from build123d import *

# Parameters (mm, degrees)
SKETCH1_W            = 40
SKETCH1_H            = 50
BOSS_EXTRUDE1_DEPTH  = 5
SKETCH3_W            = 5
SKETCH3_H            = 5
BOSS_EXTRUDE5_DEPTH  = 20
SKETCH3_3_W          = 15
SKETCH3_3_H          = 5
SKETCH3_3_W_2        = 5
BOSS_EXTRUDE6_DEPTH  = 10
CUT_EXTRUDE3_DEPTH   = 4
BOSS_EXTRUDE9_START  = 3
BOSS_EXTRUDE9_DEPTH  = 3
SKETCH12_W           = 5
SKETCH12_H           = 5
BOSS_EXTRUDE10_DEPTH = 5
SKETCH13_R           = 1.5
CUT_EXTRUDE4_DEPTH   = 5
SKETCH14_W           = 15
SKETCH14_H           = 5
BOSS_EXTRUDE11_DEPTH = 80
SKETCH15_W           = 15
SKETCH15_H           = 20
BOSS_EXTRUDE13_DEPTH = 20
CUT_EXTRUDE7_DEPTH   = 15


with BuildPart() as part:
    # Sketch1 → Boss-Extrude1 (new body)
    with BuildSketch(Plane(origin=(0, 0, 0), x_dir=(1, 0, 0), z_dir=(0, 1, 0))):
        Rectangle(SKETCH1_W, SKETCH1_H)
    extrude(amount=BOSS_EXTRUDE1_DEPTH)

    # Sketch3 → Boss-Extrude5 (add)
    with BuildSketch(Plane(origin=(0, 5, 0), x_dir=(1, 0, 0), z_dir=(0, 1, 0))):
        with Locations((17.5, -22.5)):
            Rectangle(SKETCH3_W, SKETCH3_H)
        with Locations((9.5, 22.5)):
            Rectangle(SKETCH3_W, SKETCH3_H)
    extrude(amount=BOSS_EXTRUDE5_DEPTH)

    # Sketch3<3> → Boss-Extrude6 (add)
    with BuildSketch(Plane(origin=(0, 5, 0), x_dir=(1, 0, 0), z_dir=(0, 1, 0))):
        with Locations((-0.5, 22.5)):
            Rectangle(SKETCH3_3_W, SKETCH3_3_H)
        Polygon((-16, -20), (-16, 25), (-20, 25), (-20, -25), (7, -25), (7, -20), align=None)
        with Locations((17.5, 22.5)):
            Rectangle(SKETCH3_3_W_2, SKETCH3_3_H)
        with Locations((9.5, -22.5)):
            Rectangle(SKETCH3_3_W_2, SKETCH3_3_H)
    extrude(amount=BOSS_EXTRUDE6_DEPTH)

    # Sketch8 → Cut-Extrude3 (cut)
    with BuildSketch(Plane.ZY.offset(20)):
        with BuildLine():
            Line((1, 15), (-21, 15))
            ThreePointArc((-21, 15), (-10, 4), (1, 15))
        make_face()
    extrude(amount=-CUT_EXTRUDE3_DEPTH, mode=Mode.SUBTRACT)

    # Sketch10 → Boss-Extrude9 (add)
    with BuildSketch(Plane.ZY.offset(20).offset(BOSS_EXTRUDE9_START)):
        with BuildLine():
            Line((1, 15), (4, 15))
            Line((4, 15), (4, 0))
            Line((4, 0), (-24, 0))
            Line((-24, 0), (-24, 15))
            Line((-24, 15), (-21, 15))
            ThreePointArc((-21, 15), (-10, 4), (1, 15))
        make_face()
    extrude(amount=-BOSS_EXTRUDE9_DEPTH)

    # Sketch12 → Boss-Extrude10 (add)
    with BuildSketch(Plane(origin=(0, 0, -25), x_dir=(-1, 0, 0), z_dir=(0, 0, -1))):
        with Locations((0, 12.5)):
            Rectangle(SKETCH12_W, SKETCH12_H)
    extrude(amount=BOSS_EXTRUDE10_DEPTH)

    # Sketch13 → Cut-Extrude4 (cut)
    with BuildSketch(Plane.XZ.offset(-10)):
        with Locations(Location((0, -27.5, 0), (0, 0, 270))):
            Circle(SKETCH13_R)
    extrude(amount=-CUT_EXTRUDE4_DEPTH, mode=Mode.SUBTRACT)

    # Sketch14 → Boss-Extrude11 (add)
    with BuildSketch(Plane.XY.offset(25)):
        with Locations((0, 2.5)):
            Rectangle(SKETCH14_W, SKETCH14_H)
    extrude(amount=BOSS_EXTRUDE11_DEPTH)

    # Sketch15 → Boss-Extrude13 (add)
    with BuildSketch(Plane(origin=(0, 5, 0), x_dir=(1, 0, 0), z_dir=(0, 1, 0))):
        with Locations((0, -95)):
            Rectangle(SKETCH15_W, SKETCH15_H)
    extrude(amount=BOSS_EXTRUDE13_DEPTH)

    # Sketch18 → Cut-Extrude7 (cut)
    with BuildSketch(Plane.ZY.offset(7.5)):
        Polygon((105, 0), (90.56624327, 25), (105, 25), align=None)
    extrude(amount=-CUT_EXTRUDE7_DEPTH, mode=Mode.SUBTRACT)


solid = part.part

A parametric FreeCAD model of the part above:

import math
import FreeCAD as App
import Part
import Sketcher
Q = App.Units.Quantity

doc = App.newDocument("Part")
params = doc.addObject("Spreadsheet::Sheet", "Params")
for row, (alias, value) in enumerate([
    ("sketch1_width", "40 mm"),
    ("sketch1_height", "50 mm"),
    ("pad1_length", "5 mm"),
    ("sketch2_width", "5 mm"),
    ("pad2_length", "20 mm"),
    ("sketch3_width", "15 mm"),
    ("sketch3_width2", "4 mm"),
    ("sketch3_width3", "32 mm"),
    ("sketch3_width4", "5 mm"),
    ("sketch3_height", "45 mm"),
    ("pad3_length", "10 mm"),
    ("sketch4_radius", "11 mm"),
    ("pocket1_length", "4 mm"),
    ("sketch5_radius", "11 mm"),
    ("sketch5_width", "15 mm"),
    ("sketch5_height", "3 mm"),
    ("pad4_length", "3 mm"),
    ("sketch6_width", "5 mm"),
    ("pad5_length", "5 mm"),
    ("sketch7_diameter", "3 mm"),
    ("pocket2_length", "5 mm"),
    ("sketch8_width", "15 mm"),
    ("sketch8_height", "5 mm"),
    ("pad6_length", "80 mm"),
    ("sketch9_width", "15 mm"),
    ("sketch9_height", "20 mm"),
    ("pad7_length", "20 mm"),
    ("sketch10_width", "25 mm"),
    ("pocket3_length", "15 mm"),
], start=1):
    params.set(f"A{row}", alias)
    params.set(f"B{row}", "=" + value)
    params.setAlias(f"B{row}", alias)

body = doc.addObject("PartDesign::Body", "Body")

sketch1 = body.newObject("Sketcher::SketchObject", "Sketch")
sketch1.AttachmentSupport = (doc.getObject("XZ_Plane"), [""])
sketch1.MapMode = "FlatFace"
sketch1.addGeometry(Part.LineSegment(App.Vector(-20, -25, 0), App.Vector(-20, 25, 0)), False)
sketch1.addGeometry(Part.LineSegment(App.Vector(-20, 25, 0), App.Vector(20, 25, 0)), False)
sketch1.addGeometry(Part.LineSegment(App.Vector(20, 25, 0), App.Vector(20, -25, 0)), False)
sketch1.addGeometry(Part.LineSegment(App.Vector(20, -25, 0), App.Vector(-20, -25, 0)), False)
sketch1.addConstraint(Sketcher.Constraint("Coincident", 0, 2, 1, 1))
sketch1.addConstraint(Sketcher.Constraint("Coincident", 1, 2, 2, 1))
sketch1.addConstraint(Sketcher.Constraint("Coincident", 2, 2, 3, 1))
sketch1.addConstraint(Sketcher.Constraint("Coincident", 3, 2, 0, 1))
sketch1.addConstraint(Sketcher.Constraint("Vertical", 0))
sketch1.addConstraint(Sketcher.Constraint("Horizontal", 1))
sketch1.addConstraint(Sketcher.Constraint("Vertical", 2))
sketch1.addConstraint(Sketcher.Constraint("Horizontal", 3))
sketch1.addConstraint(Sketcher.Constraint("Symmetric", 0, 2, 2, 2, -1, 1))
sketch1.addConstraint(Sketcher.Constraint("DistanceX", 1, 1, 1, 2, 40.0))
sketch1.addConstraint(Sketcher.Constraint("DistanceY", 0, 1, 0, 2, 50.0))
sketch1.setExpression("Constraints[9]", "Params.sketch1_width")
sketch1.setExpression("Constraints[10]", "Params.sketch1_height")
pad1 = body.newObject("PartDesign::Pad", "Pad")
pad1.Profile = sketch1
pad1.setExpression("Length", "Params.pad1_length")
pad1.Reversed = True

sketch2 = body.newObject("Sketcher::SketchObject", "Sketch001")
sketch2.AttachmentSupport = (doc.getObject("XZ_Plane"), [""])
sketch2.MapMode = "FlatFace"
sketch2.AttachmentOffset = App.Placement(App.Vector(0, 0, -5), App.Rotation())
sketch2.addGeometry(Part.LineSegment(App.Vector(15, 20, 0), App.Vector(15, 25, 0)), False)
sketch2.addGeometry(Part.LineSegment(App.Vector(15, 25, 0), App.Vector(20, 25, 0)), False)
sketch2.addGeometry(Part.LineSegment(App.Vector(20, 25, 0), App.Vector(20, 20, 0)), False)
sketch2.addGeometry(Part.LineSegment(App.Vector(20, 20, 0), App.Vector(15, 20, 0)), False)
sketch2.addGeometry(Part.LineSegment(App.Vector(7, -25, 0), App.Vector(7, -20, 0)), False)
sketch2.addGeometry(Part.LineSegment(App.Vector(7, -20, 0), App.Vector(12, -20, 0)), False)
sketch2.addGeometry(Part.LineSegment(App.Vector(12, -20, 0), App.Vector(12, -25, 0)), False)
sketch2.addGeometry(Part.LineSegment(App.Vector(12, -25, 0), App.Vector(7, -25, 0)), False)
sketch2.addConstraint(Sketcher.Constraint("Coincident", 0, 2, 1, 1))
sketch2.addConstraint(Sketcher.Constraint("Coincident", 1, 2, 2, 1))
sketch2.addConstraint(Sketcher.Constraint("Coincident", 2, 2, 3, 1))
sketch2.addConstraint(Sketcher.Constraint("Coincident", 3, 2, 0, 1))
sketch2.addConstraint(Sketcher.Constraint("Coincident", 4, 2, 5, 1))
sketch2.addConstraint(Sketcher.Constraint("Coincident", 5, 2, 6, 1))
sketch2.addConstraint(Sketcher.Constraint("Coincident", 6, 2, 7, 1))
sketch2.addConstraint(Sketcher.Constraint("Coincident", 7, 2, 4, 1))
sketch2.addConstraint(Sketcher.Constraint("Vertical", 0))
sketch2.addConstraint(Sketcher.Constraint("Horizontal", 1))
sketch2.addConstraint(Sketcher.Constraint("Vertical", 2))
sketch2.addConstraint(Sketcher.Constraint("Horizontal", 3))
sketch2.addConstraint(Sketcher.Constraint("Vertical", 4))
sketch2.addConstraint(Sketcher.Constraint("Horizontal", 5))
sketch2.addConstraint(Sketcher.Constraint("Vertical", 6))
sketch2.addConstraint(Sketcher.Constraint("Horizontal", 7))
sketch2.addConstraint(Sketcher.Constraint("Equal", 3, 5))
sketch2.addConstraint(Sketcher.Constraint("Equal", 7, 0))
sketch2.addConstraint(Sketcher.Constraint("Equal", 2, 4))
sketch2.addConstraint(Sketcher.Constraint("DistanceX", 1, 1, 1, 2, 5.0))
sketch2.addConstraint(Sketcher.Constraint("DistanceX", -1, 1, 0, 2, 15.0))
sketch2.addConstraint(Sketcher.Constraint("DistanceY", -1, 1, 0, 2, 25.0))
sketch2.addConstraint(Sketcher.Constraint("DistanceX", -1, 1, 4, 2, 7.0))
sketch2.addConstraint(Sketcher.Constraint("DistanceY", 4, 2, -1, 1, 20.0))
sketch2.setExpression("Constraints[19]", "Params.sketch2_width")
pad2 = body.newObject("PartDesign::Pad", "Pad001")
pad2.Profile = sketch2
pad2.setExpression("Length", "Params.pad2_length")
pad2.Reversed = True

sketch3 = body.newObject("Sketcher::SketchObject", "Sketch002")
sketch3.AttachmentSupport = (doc.getObject("XZ_Plane"), [""])
sketch3.MapMode = "FlatFace"
sketch3.AttachmentOffset = App.Placement(App.Vector(0, 0, -5), App.Rotation())
sketch3.addGeometry(Part.LineSegment(App.Vector(-8, -25, 0), App.Vector(-8, -20, 0)), False)
sketch3.addGeometry(Part.LineSegment(App.Vector(-8, -20, 0), App.Vector(7, -20, 0)), False)
sketch3.addGeometry(Part.LineSegment(App.Vector(7, -20, 0), App.Vector(7, -25, 0)), False)
sketch3.addGeometry(Part.LineSegment(App.Vector(7, -25, 0), App.Vector(-8, -25, 0)), False)
sketch3.addGeometry(Part.LineSegment(App.Vector(-16, 20, 0), App.Vector(-16, -25, 0)), False)
sketch3.addGeometry(Part.LineSegment(App.Vector(-16, -25, 0), App.Vector(-20, -25, 0)), False)
sketch3.addGeometry(Part.LineSegment(App.Vector(-20, -25, 0), App.Vector(-20, 25, 0)), False)
sketch3.addGeometry(Part.LineSegment(App.Vector(-20, 25, 0), App.Vector(12, 25, 0)), False)
sketch3.addGeometry(Part.LineSegment(App.Vector(12, 25, 0), App.Vector(12, 20, 0)), False)
sketch3.addGeometry(Part.LineSegment(App.Vector(12, 20, 0), App.Vector(-16, 20, 0)), False)
sketch3.addGeometry(Part.LineSegment(App.Vector(15, -25, 0), App.Vector(15, -20, 0)), False)
sketch3.addGeometry(Part.LineSegment(App.Vector(15, -20, 0), App.Vector(20, -20, 0)), False)
sketch3.addGeometry(Part.LineSegment(App.Vector(20, -20, 0), App.Vector(20, -25, 0)), False)
sketch3.addGeometry(Part.LineSegment(App.Vector(20, -25, 0), App.Vector(15, -25, 0)), False)
sketch3.addConstraint(Sketcher.Constraint("Coincident", 0, 2, 1, 1))
sketch3.addConstraint(Sketcher.Constraint("Coincident", 1, 2, 2, 1))
sketch3.addConstraint(Sketcher.Constraint("Coincident", 2, 2, 3, 1))
sketch3.addConstraint(Sketcher.Constraint("Coincident", 3, 2, 0, 1))
sketch3.addConstraint(Sketcher.Constraint("Coincident", 4, 2, 5, 1))
sketch3.addConstraint(Sketcher.Constraint("Coincident", 5, 2, 6, 1))
sketch3.addConstraint(Sketcher.Constraint("Coincident", 6, 2, 7, 1))
sketch3.addConstraint(Sketcher.Constraint("Coincident", 7, 2, 8, 1))
sketch3.addConstraint(Sketcher.Constraint("Coincident", 8, 2, 9, 1))
sketch3.addConstraint(Sketcher.Constraint("Coincident", 9, 2, 4, 1))
sketch3.addConstraint(Sketcher.Constraint("Coincident", 10, 2, 11, 1))
sketch3.addConstraint(Sketcher.Constraint("Coincident", 11, 2, 12, 1))
sketch3.addConstraint(Sketcher.Constraint("Coincident", 12, 2, 13, 1))
sketch3.addConstraint(Sketcher.Constraint("Coincident", 13, 2, 10, 1))
sketch3.addConstraint(Sketcher.Constraint("Vertical", 0))
sketch3.addConstraint(Sketcher.Constraint("Horizontal", 1))
sketch3.addConstraint(Sketcher.Constraint("Vertical", 2))
sketch3.addConstraint(Sketcher.Constraint("Horizontal", 3))
sketch3.addConstraint(Sketcher.Constraint("Vertical", 4))
sketch3.addConstraint(Sketcher.Constraint("Horizontal", 5))
sketch3.addConstraint(Sketcher.Constraint("Vertical", 6))
sketch3.addConstraint(Sketcher.Constraint("Horizontal", 7))
sketch3.addConstraint(Sketcher.Constraint("Vertical", 8))
sketch3.addConstraint(Sketcher.Constraint("Horizontal", 9))
sketch3.addConstraint(Sketcher.Constraint("Vertical", 10))
sketch3.addConstraint(Sketcher.Constraint("Horizontal", 11))
sketch3.addConstraint(Sketcher.Constraint("Vertical", 12))
sketch3.addConstraint(Sketcher.Constraint("Horizontal", 13))
sketch3.addConstraint(Sketcher.Constraint("Symmetric", 6, 2, 12, 2, -1, 1))
sketch3.addConstraint(Sketcher.Constraint("Horizontal", 3, 2, 4, 2))
sketch3.addConstraint(Sketcher.Constraint("Horizontal", 1, 2, 10, 2))
sketch3.addConstraint(Sketcher.Constraint("Horizontal", 5, 2, 12, 2))
sketch3.addConstraint(Sketcher.Constraint("Equal", 13, 0))
sketch3.addConstraint(Sketcher.Constraint("Equal", 2, 8))
sketch3.addConstraint(Sketcher.Constraint("DistanceX", 1, 1, 1, 2, 15.0))
sketch3.addConstraint(Sketcher.Constraint("DistanceX", 5, 2, 5, 1, 4.0))
sketch3.addConstraint(Sketcher.Constraint("DistanceX", 7, 1, 7, 2, 32.0))
sketch3.addConstraint(Sketcher.Constraint("DistanceX", 11, 1, 11, 2, 5.0))
sketch3.addConstraint(Sketcher.Constraint("DistanceY", 4, 2, 4, 1, 45.0))
sketch3.addConstraint(Sketcher.Constraint("DistanceX", 0, 2, -1, 1, 8.0))
sketch3.addConstraint(Sketcher.Constraint("DistanceX", 4, 2, -1, 1, 16.0))
sketch3.setExpression("Constraints[34]", "Params.sketch3_width")
sketch3.setExpression("Constraints[35]", "Params.sketch3_width2")
sketch3.setExpression("Constraints[36]", "Params.sketch3_width3")
sketch3.setExpression("Constraints[37]", "Params.sketch3_width4")
sketch3.setExpression("Constraints[38]", "Params.sketch3_height")
pad3 = body.newObject("PartDesign::Pad", "Pad002")
pad3.Profile = sketch3
pad3.setExpression("Length", "Params.pad3_length")
pad3.Reversed = True

sketch4 = body.newObject("Sketcher::SketchObject", "Sketch003")
sketch4.AttachmentSupport = (doc.getObject("YZ_Plane"), [""])
sketch4.MapMode = "FlatFace"
sketch4.AttachmentOffset = App.Placement(App.Vector(0, 0, -20), App.Rotation())
sketch4.addGeometry(Part.LineSegment(App.Vector(15, 1, 0), App.Vector(15, -21, 0)), False)
sketch4.addGeometry(Part.ArcOfCircle(Part.Circle(App.Vector(15, -10, 0), App.Vector(0, 0, 1), 11), math.radians(90), math.radians(270)), False)
sketch4.addConstraint(Sketcher.Constraint("Coincident", 0, 1, 1, 1))
sketch4.addConstraint(Sketcher.Constraint("Coincident", 1, 2, 0, 2))
sketch4.addConstraint(Sketcher.Constraint("Vertical", 0))
sketch4.addConstraint(Sketcher.Constraint("Vertical", 1, 3, 0, 1))
sketch4.addConstraint(Sketcher.Constraint("Radius", 1, 11.0))
sketch4.addConstraint(Sketcher.Constraint("DistanceX", -1, 1, 1, 3, 15.0))
sketch4.addConstraint(Sketcher.Constraint("DistanceY", 1, 3, -1, 1, 10.0))
sketch4.setExpression("Constraints[4]", "Params.sketch4_radius")
pocket1 = body.newObject("PartDesign::Pocket", "Pocket")
pocket1.Profile = sketch4
pocket1.setExpression("Length", "Params.pocket1_length")
pocket1.Reversed = True

sketch5 = body.newObject("Sketcher::SketchObject", "Sketch004")
sketch5.AttachmentSupport = (doc.getObject("YZ_Plane"), [""])
sketch5.MapMode = "FlatFace"
sketch5.AttachmentOffset = App.Placement(App.Vector(0, 0, -23), App.Rotation())
sketch5.addGeometry(Part.LineSegment(App.Vector(15, 4, 0), App.Vector(15, 1, 0)), False)
sketch5.addGeometry(Part.ArcOfCircle(Part.Circle(App.Vector(15, -10, 0), App.Vector(0, 0, 1), 11), math.radians(90), math.radians(270)), False)
sketch5.addGeometry(Part.LineSegment(App.Vector(15, -21, 0), App.Vector(15, -24, 0)), False)
sketch5.addGeometry(Part.LineSegment(App.Vector(15, -24, 0), App.Vector(0, -24, 0)), False)
sketch5.addGeometry(Part.LineSegment(App.Vector(0, -24, 0), App.Vector(0, 4, 0)), False)
sketch5.addGeometry(Part.LineSegment(App.Vector(0, 4, 0), App.Vector(15, 4, 0)), False)
sketch5.addConstraint(Sketcher.Constraint("Coincident", 0, 2, 1, 1))
sketch5.addConstraint(Sketcher.Constraint("Coincident", 1, 2, 2, 1))
sketch5.addConstraint(Sketcher.Constraint("Coincident", 2, 2, 3, 1))
sketch5.addConstraint(Sketcher.Constraint("Coincident", 3, 2, 4, 1))
sketch5.addConstraint(Sketcher.Constraint("Coincident", 4, 2, 5, 1))
sketch5.addConstraint(Sketcher.Constraint("Coincident", 5, 2, 0, 1))
sketch5.addConstraint(Sketcher.Constraint("Vertical", 0))
sketch5.addConstraint(Sketcher.Constraint("Vertical", 2))
sketch5.addConstraint(Sketcher.Constraint("Horizontal", 3))
sketch5.addConstraint(Sketcher.Constraint("Vertical", 4))
sketch5.addConstraint(Sketcher.Constraint("Horizontal", 5))
sketch5.addConstraint(Sketcher.Constraint("PointOnObject", 3, 2, -2))
sketch5.addConstraint(Sketcher.Constraint("Vertical", 1, 3, 0, 2))
sketch5.addConstraint(Sketcher.Constraint("Vertical", 0, 2, 1, 2))
sketch5.addConstraint(Sketcher.Constraint("Equal", 0, 2))
sketch5.addConstraint(Sketcher.Constraint("Radius", 1, 11.0))
sketch5.addConstraint(Sketcher.Constraint("DistanceX", 3, 2, 3, 1, 15.0))
sketch5.addConstraint(Sketcher.Constraint("DistanceY", 0, 2, 0, 1, 3.0))
sketch5.addConstraint(Sketcher.Constraint("DistanceY", 1, 3, -1, 1, 10.0))
sketch5.setExpression("Constraints[15]", "Params.sketch5_radius")
sketch5.setExpression("Constraints[16]", "Params.sketch5_width")
sketch5.setExpression("Constraints[17]", "Params.sketch5_height")
pad4 = body.newObject("PartDesign::Pad", "Pad003")
pad4.Profile = sketch5
pad4.setExpression("Length", "Params.pad4_length")

sketch6 = body.newObject("Sketcher::SketchObject", "Sketch005")
sketch6.AttachmentSupport = (doc.getObject("XY_Plane"), [""])
sketch6.MapMode = "FlatFace"
sketch6.AttachmentOffset = App.Placement(App.Vector(0, 0, -25), App.Rotation())
sketch6.addGeometry(Part.LineSegment(App.Vector(2, 15, 0), App.Vector(2, 10, 0)), False)
sketch6.addGeometry(Part.LineSegment(App.Vector(2, 10, 0), App.Vector(-2, 10, 0)), False)
sketch6.addGeometry(Part.LineSegment(App.Vector(-2, 10, 0), App.Vector(-2, 15, 0)), False)
sketch6.addGeometry(Part.LineSegment(App.Vector(-2, 15, 0), App.Vector(2, 15, 0)), False)
sketch6.addConstraint(Sketcher.Constraint("Coincident", 0, 2, 1, 1))
sketch6.addConstraint(Sketcher.Constraint("Coincident", 1, 2, 2, 1))
sketch6.addConstraint(Sketcher.Constraint("Coincident", 2, 2, 3, 1))
sketch6.addConstraint(Sketcher.Constraint("Coincident", 3, 2, 0, 1))
sketch6.addConstraint(Sketcher.Constraint("Vertical", 0))
sketch6.addConstraint(Sketcher.Constraint("Horizontal", 1))
sketch6.addConstraint(Sketcher.Constraint("Vertical", 2))
sketch6.addConstraint(Sketcher.Constraint("Horizontal", 3))
sketch6.addConstraint(Sketcher.Constraint("Equal", 3, 0))
sketch6.addConstraint(Sketcher.Constraint("DistanceX", 1, 2, 1, 1, 5.0))
sketch6.addConstraint(Sketcher.Constraint("DistanceY", -1, 1, 0, 2, 10.0))
sketch6.addConstraint(Sketcher.Constraint("DistanceX", -1, 1, 0, 2, 2.5))
sketch6.setExpression("Constraints[9]", "Params.sketch6_width")
pad5 = body.newObject("PartDesign::Pad", "Pad004")
pad5.Profile = sketch6
pad5.setExpression("Length", "Params.pad5_length")
pad5.Reversed = True

sketch7 = body.newObject("Sketcher::SketchObject", "Sketch006")
sketch7.AttachmentSupport = (doc.getObject("XZ_Plane"), [""])
sketch7.MapMode = "FlatFace"
sketch7.AttachmentOffset = App.Placement(App.Vector(0, 0, -10), App.Rotation())
sketch7.addGeometry(Part.Circle(App.Vector(0, -27.5, 0), App.Vector(0, 0, 1), 1.5), False)
sketch7.addConstraint(Sketcher.Constraint("PointOnObject", 0, 3, -2))
sketch7.addConstraint(Sketcher.Constraint("Diameter", 0, 3.0))
sketch7.addConstraint(Sketcher.Constraint("DistanceY", 0, 3, -1, 1, 27.5))
sketch7.setExpression("Constraints[1]", "Params.sketch7_diameter")
pocket2 = body.newObject("PartDesign::Pocket", "Pocket001")
pocket2.Profile = sketch7
pocket2.setExpression("Length", "Params.pocket2_length")

sketch8 = body.newObject("Sketcher::SketchObject", "Sketch007")
sketch8.AttachmentSupport = (doc.getObject("XY_Plane"), [""])
sketch8.MapMode = "FlatFace"
sketch8.AttachmentOffset = App.Placement(App.Vector(0, 0, 25), App.Rotation())
sketch8.addGeometry(Part.LineSegment(App.Vector(-8, 5, 0), App.Vector(-8, 0, 0)), False)
sketch8.addGeometry(Part.LineSegment(App.Vector(-8, 0, 0), App.Vector(8, 0, 0)), False)
sketch8.addGeometry(Part.LineSegment(App.Vector(8, 0, 0), App.Vector(8, 5, 0)), False)
sketch8.addGeometry(Part.LineSegment(App.Vector(8, 5, 0), App.Vector(-8, 5, 0)), False)
sketch8.addConstraint(Sketcher.Constraint("Coincident", 0, 2, 1, 1))
sketch8.addConstraint(Sketcher.Constraint("Coincident", 1, 2, 2, 1))
sketch8.addConstraint(Sketcher.Constraint("Coincident", 2, 2, 3, 1))
sketch8.addConstraint(Sketcher.Constraint("Coincident", 3, 2, 0, 1))
sketch8.addConstraint(Sketcher.Constraint("Vertical", 0))
sketch8.addConstraint(Sketcher.Constraint("Horizontal", 1))
sketch8.addConstraint(Sketcher.Constraint("Vertical", 2))
sketch8.addConstraint(Sketcher.Constraint("Horizontal", 3))
sketch8.addConstraint(Sketcher.Constraint("Symmetric", 0, 2, 1, 2, -1, 1))
sketch8.addConstraint(Sketcher.Constraint("DistanceX", 1, 1, 1, 2, 15.0))
sketch8.addConstraint(Sketcher.Constraint("DistanceY", 0, 2, 0, 1, 5.0))
sketch8.setExpression("Constraints[9]", "Params.sketch8_width")
sketch8.setExpression("Constraints[10]", "Params.sketch8_height")
pad6 = body.newObject("PartDesign::Pad", "Pad005")
pad6.Profile = sketch8
pad6.setExpression("Length", "Params.pad6_length")

sketch9 = body.newObject("Sketcher::SketchObject", "Sketch008")
sketch9.AttachmentSupport = (doc.getObject("XZ_Plane"), [""])
sketch9.MapMode = "FlatFace"
sketch9.AttachmentOffset = App.Placement(App.Vector(0, 0, -5), App.Rotation())
sketch9.addGeometry(Part.LineSegment(App.Vector(-8, 85, 0), App.Vector(-8, 105, 0)), False)
sketch9.addGeometry(Part.LineSegment(App.Vector(-8, 105, 0), App.Vector(8, 105, 0)), False)
sketch9.addGeometry(Part.LineSegment(App.Vector(8, 105, 0), App.Vector(8, 85, 0)), False)
sketch9.addGeometry(Part.LineSegment(App.Vector(8, 85, 0), App.Vector(-8, 85, 0)), False)
sketch9.addConstraint(Sketcher.Constraint("Coincident", 0, 2, 1, 1))
sketch9.addConstraint(Sketcher.Constraint("Coincident", 1, 2, 2, 1))
sketch9.addConstraint(Sketcher.Constraint("Coincident", 2, 2, 3, 1))
sketch9.addConstraint(Sketcher.Constraint("Coincident", 3, 2, 0, 1))
sketch9.addConstraint(Sketcher.Constraint("Vertical", 0))
sketch9.addConstraint(Sketcher.Constraint("Horizontal", 1))
sketch9.addConstraint(Sketcher.Constraint("Vertical", 2))
sketch9.addConstraint(Sketcher.Constraint("Horizontal", 3))
sketch9.addConstraint(Sketcher.Constraint("DistanceX", 1, 1, 1, 2, 15.0))
sketch9.addConstraint(Sketcher.Constraint("DistanceY", 0, 1, 0, 2, 20.0))
sketch9.addConstraint(Sketcher.Constraint("DistanceY", -1, 1, 0, 2, 105.0))
sketch9.addConstraint(Sketcher.Constraint("DistanceX", 0, 2, -1, 1, 7.5))
sketch9.setExpression("Constraints[8]", "Params.sketch9_width")
sketch9.setExpression("Constraints[9]", "Params.sketch9_height")
pad7 = body.newObject("PartDesign::Pad", "Pad006")
pad7.Profile = sketch9
pad7.setExpression("Length", "Params.pad7_length")
pad7.Reversed = True

sketch10 = body.newObject("Sketcher::SketchObject", "Sketch009")
sketch10.AttachmentSupport = (doc.getObject("YZ_Plane"), [""])
sketch10.MapMode = "FlatFace"
sketch10.AttachmentOffset = App.Placement(App.Vector(0, 0, -7.5), App.Rotation())
sketch10.addGeometry(Part.LineSegment(App.Vector(25, 91, 0), App.Vector(0, 105, 0)), False)
sketch10.addGeometry(Part.LineSegment(App.Vector(0, 105, 0), App.Vector(25, 105, 0)), False)
sketch10.addGeometry(Part.LineSegment(App.Vector(25, 105, 0), App.Vector(25, 91, 0)), False)
sketch10.addConstraint(Sketcher.Constraint("Coincident", 0, 2, 1, 1))
sketch10.addConstraint(Sketcher.Constraint("Coincident", 1, 2, 2, 1))
sketch10.addConstraint(Sketcher.Constraint("Coincident", 2, 2, 0, 1))
sketch10.addConstraint(Sketcher.Constraint("Horizontal", 1))
sketch10.addConstraint(Sketcher.Constraint("Vertical", 2))
sketch10.addConstraint(Sketcher.Constraint("PointOnObject", 0, 2, -2))
sketch10.addConstraint(Sketcher.Constraint("DistanceX", 1, 1, 1, 2, 25.0))
sketch10.addConstraint(Sketcher.Constraint("Angle", 0, Q("150 deg")))
sketch10.addConstraint(Sketcher.Constraint("DistanceY", -1, 1, 0, 2, 105.0))
sketch10.setExpression("Constraints[6]", "Params.sketch10_width")
pocket3 = body.newObject("PartDesign::Pocket", "Pocket002")
pocket3.Profile = sketch10
pocket3.setExpression("Length", "Params.pocket3_length")
pocket3.Reversed = True

doc.recompute()
